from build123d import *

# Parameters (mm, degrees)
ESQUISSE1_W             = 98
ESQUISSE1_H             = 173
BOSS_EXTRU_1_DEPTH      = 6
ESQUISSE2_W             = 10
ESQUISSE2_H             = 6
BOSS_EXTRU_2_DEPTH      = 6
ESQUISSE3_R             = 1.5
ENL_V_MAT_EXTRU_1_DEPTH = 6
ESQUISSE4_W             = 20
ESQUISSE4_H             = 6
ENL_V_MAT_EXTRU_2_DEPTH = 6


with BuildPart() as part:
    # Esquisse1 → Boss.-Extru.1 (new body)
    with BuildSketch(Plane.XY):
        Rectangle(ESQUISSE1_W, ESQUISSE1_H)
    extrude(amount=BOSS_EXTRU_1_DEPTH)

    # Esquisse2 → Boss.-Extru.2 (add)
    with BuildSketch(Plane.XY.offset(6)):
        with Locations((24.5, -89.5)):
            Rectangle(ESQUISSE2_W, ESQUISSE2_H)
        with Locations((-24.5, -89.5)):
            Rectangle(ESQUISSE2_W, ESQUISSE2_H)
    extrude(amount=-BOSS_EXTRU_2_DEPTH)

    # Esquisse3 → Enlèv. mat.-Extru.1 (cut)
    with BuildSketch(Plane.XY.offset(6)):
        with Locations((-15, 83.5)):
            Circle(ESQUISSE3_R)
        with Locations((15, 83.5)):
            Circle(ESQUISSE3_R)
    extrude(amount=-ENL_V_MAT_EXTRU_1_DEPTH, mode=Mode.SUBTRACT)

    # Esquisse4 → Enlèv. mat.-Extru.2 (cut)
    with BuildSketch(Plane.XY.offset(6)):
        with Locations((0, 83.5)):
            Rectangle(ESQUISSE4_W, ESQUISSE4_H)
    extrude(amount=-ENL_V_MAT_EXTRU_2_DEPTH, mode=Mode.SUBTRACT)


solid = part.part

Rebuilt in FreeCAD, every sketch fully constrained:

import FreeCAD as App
import Part
import Sketcher

V = App.Vector
Q = App.Units.Quantity

doc = App.newDocument("Part")
body = doc.addObject("PartDesign::Body", "Body")

sketch1 = doc.addObject("Sketcher::SketchObject", "Sketch")
body.addObject(sketch1)
sketch1.AttachmentSupport = (doc.XY_Plane, [""])
sketch1.MapMode = "FlatFace"
sketch1.addGeometry([
    Part.LineSegment(V(-49, 86, 0), V(-49, -86, 0)),
    Part.LineSegment(V(-49, -86, 0), V(49, -86, 0)),
    Part.LineSegment(V(49, -86, 0), V(49, 86, 0)),
    Part.LineSegment(V(49, 86, 0), V(-49, 86, 0)),
], False)
sketch1.addConstraint([
    Sketcher.Constraint("Coincident", 0, 2, 1, 1),
    Sketcher.Constraint("Coincident", 1, 2, 2, 1),
    Sketcher.Constraint("Coincident", 2, 2, 3, 1),
    Sketcher.Constraint("Coincident", 3, 2, 0, 1),
    Sketcher.Constraint("Vertical", 0),
    Sketcher.Constraint("Horizontal", 1),
    Sketcher.Constraint("Vertical", 2),
    Sketcher.Constraint("Horizontal", 3),
    Sketcher.Constraint("Symmetric", 0, 2, 2, 2, -1, 1),
    Sketcher.Constraint("DistanceX", 1, 1, 1, 2, Q("98 mm")),
    Sketcher.Constraint("DistanceY", 0, 2, 0, 1, Q("173 mm")),
])
pad1 = doc.addObject("PartDesign::Pad", "Pad")
body.addObject(pad1)
pad1.Profile = sketch1
pad1.Length = 6

sketch2 = doc.addObject("Sketcher::SketchObject", "Sketch001")
body.addObject(sketch2)
sketch2.AttachmentSupport = (doc.XY_Plane, [""])
sketch2.MapMode = "FlatFace"
sketch2.AttachmentOffset = App.Placement(V(0, 0, 6), App.Rotation())
sketch2.addGeometry([
    Part.LineSegment(V(20, -86, 0), V(20, -92, 0)),
    Part.LineSegment(V(20, -92, 0), V(30, -92, 0)),
    Part.LineSegment(V(30, -92, 0), V(30, -86, 0)),
    Part.LineSegment(V(30, -86, 0), V(20, -86, 0)),
    Part.LineSegment(V(-30, -86, 0), V(-30, -92, 0)),
    Part.LineSegment(V(-30, -92, 0), V(-20, -92, 0)),
    Part.LineSegment(V(-20, -92, 0), V(-20, -86, 0)),
    Part.LineSegment(V(-20, -86, 0), V(-30, -86, 0)),
], False)
sketch2.addConstraint([
    Sketcher.Constraint("Coincident", 0, 2, 1, 1),
    Sketcher.Constraint("Coincident", 1, 2, 2, 1),
    Sketcher.Constraint("Coincident", 2, 2, 3, 1),
    Sketcher.Constraint("Coincident", 3, 2, 0, 1),
    Sketcher.Constraint("Coincident", 4, 2, 5, 1),
    Sketcher.Constraint("Coincident", 5, 2, 6, 1),
    Sketcher.Constraint("Coincident", 6, 2, 7, 1),
    Sketcher.Constraint("Coincident", 7, 2, 4, 1),
    Sketcher.Constraint("Vertical", 0),
    Sketcher.Constraint("Horizontal", 1),
    Sketcher.Constraint("Vertical", 2),
    Sketcher.Constraint("Horizontal", 3),
    Sketcher.Constraint("Vertical", 4),
    Sketcher.Constraint("Horizontal", 5),
    Sketcher.Constraint("Vertical", 6),
    Sketcher.Constraint("Horizontal", 7),
    Sketcher.Constraint("Symmetric", 1, 2, 4, 2, -2),
    Sketcher.Constraint("Symmetric", 3, 2, 6, 2, -2),
    Sketcher.Constraint("DistanceX", 1, 1, 1, 2, Q("10 mm")),
    Sketcher.Constraint("DistanceY", 0, 2, 0, 1, Q("6 mm")),
    Sketcher.Constraint("DistanceX", 4, 2, 0, 2, Q("49 mm")),
    Sketcher.Constraint("DistanceY", 0, 2, -1, 1, Q("92.5 mm")),
])
pad2 = doc.addObject("PartDesign::Pad", "Pad001")
body.addObject(pad2)
pad2.Profile = sketch2
pad2.Length = 6
pad2.Reversed = True

sketch3 = doc.addObject("Sketcher::SketchObject", "Sketch002")
body.addObject(sketch3)
sketch3.AttachmentSupport = (doc.XY_Plane, [""])
sketch3.MapMode = "FlatFace"
sketch3.AttachmentOffset = App.Placement(V(0, 0, 6), App.Rotation())
sketch3.addGeometry([
    Part.Circle(V(-15, 83.5, 0), V(0, 0, 1), 1.5),
    Part.Circle(V(15, 83.5, 0), V(0, 0, 1), 1.5),
], False)
sketch3.addConstraint([
    Sketcher.Constraint("Equal", 0, 1),
    Sketcher.Constraint("Symmetric", 0, 3, 1, 3, -2),
    Sketcher.Constraint("Diameter", 0, Q("3 mm")),
    Sketcher.Constraint("DistanceX", 0, 3, -1, 1, Q("15 mm")),
    Sketcher.Constraint("DistanceY", -1, 1, 0, 3, Q("83.5 mm")),
])
pocket1 = doc.addObject("PartDesign::Pocket", "Pocket")
body.addObject(pocket1)
pocket1.Profile = sketch3
pocket1.Length = 6

sketch4 = doc.addObject("Sketcher::SketchObject", "Sketch003")
body.addObject(sketch4)
sketch4.AttachmentSupport = (doc.XY_Plane, [""])
sketch4.MapMode = "FlatFace"
sketch4.AttachmentOffset = App.Placement(V(0, 0, 6), App.Rotation())
sketch4.addGeometry([
    Part.LineSegment(V(-10, 86, 0), V(-10, 80, 0)),
    Part.LineSegment(V(-10, 80, 0), V(10, 80, 0)),
    Part.LineSegment(V(10, 80, 0), V(10, 86, 0)),
    Part.LineSegment(V(10, 86, 0), V(-10, 86, 0)),
], False)
sketch4.addConstraint([
    Sketcher.Constraint("Coincident", 0, 2, 1, 1),
    Sketcher.Constraint("Coincident", 1, 2, 2, 1),
    Sketcher.Constraint("Coincident", 2, 2, 3, 1),
    Sketcher.Constraint("Coincident", 3, 2, 0, 1),
    Sketcher.Constraint("Vertical", 0),
    Sketcher.Constraint("Horizontal", 1),
    Sketcher.Constraint("Vertical", 2),
    Sketcher.Constraint("Horizontal", 3),
    Sketcher.Constraint("DistanceX", 1, 1, 1, 2, Q("20 mm")),
    Sketcher.Constraint("DistanceY", 0, 2, 0, 1, Q("6 mm")),
    Sketcher.Constraint("DistanceX", 0, 2, -1, 1, Q("10 mm")),
    Sketcher.Constraint("DistanceY", -1, 1, 0, 2, Q("80.5 mm")),
])
pocket2 = doc.addObject("PartDesign::Pocket", "Pocket001")
body.addObject(pocket2)
pocket2.Profile = sketch4
pocket2.Length = 6

doc.recompute()
